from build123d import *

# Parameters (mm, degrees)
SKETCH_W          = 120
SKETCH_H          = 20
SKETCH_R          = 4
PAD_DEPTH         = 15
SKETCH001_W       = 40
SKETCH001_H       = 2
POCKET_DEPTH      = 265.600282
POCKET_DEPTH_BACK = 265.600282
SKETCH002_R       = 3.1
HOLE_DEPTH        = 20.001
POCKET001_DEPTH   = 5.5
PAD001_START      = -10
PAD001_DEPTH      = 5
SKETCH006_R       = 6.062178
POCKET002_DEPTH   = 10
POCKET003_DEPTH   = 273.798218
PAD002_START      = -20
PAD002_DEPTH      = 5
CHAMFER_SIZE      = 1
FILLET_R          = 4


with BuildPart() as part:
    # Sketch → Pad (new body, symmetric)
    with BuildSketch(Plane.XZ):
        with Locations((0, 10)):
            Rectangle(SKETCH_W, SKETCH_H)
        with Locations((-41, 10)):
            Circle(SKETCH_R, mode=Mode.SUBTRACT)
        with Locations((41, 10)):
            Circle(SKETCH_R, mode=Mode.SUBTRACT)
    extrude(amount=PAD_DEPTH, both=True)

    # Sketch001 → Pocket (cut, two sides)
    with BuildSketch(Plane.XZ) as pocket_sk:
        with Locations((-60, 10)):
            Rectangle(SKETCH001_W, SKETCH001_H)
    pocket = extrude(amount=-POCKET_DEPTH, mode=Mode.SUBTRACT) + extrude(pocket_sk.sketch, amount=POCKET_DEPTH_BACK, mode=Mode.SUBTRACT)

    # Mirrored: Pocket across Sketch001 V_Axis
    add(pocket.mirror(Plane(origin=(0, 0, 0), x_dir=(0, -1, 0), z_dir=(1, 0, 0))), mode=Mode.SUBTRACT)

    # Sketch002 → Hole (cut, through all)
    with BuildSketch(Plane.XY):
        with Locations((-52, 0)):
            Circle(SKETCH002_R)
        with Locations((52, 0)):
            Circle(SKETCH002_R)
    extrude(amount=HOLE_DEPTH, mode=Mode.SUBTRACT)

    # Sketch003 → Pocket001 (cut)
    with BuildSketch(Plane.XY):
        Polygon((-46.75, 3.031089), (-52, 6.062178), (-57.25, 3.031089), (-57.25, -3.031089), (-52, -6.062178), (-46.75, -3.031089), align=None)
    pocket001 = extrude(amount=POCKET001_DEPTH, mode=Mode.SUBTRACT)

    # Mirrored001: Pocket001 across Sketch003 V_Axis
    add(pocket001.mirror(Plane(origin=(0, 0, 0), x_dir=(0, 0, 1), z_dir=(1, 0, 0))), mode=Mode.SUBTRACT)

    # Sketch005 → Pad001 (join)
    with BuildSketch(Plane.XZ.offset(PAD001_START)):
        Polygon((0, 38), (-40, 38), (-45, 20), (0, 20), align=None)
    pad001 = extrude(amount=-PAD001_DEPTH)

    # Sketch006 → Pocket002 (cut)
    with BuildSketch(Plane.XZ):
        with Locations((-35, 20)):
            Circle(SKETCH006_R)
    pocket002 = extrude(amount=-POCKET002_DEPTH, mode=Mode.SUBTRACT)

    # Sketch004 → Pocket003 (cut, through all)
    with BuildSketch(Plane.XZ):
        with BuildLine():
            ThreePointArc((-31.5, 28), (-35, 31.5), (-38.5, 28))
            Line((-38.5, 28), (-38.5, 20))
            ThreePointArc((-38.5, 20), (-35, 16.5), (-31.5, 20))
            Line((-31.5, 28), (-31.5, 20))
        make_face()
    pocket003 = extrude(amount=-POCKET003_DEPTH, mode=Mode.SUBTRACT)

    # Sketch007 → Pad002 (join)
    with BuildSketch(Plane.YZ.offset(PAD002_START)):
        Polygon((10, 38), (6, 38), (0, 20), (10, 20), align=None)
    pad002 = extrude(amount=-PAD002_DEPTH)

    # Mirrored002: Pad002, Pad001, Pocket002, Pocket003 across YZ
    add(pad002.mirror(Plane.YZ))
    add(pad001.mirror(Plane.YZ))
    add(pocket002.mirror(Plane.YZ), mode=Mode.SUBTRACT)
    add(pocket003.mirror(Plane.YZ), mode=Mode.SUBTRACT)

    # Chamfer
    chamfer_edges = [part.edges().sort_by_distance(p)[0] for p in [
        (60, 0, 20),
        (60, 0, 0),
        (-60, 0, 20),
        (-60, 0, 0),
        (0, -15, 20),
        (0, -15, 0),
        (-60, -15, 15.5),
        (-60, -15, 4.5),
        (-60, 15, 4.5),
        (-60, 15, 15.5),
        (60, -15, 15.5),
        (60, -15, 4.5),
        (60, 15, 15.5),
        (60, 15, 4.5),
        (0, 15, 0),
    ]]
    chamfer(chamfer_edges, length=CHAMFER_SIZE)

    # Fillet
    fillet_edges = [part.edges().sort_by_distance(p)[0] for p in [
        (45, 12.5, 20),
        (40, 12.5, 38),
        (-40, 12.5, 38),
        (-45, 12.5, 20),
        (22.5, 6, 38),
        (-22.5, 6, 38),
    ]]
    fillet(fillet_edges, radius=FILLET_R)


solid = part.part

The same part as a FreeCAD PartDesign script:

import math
import FreeCAD as App
import Part
import Sketcher
Q = App.Units.Quantity


def edges_at(feature, points):
    """Names of the edges that pass closest to the given points."""
    edges = feature.Shape.Edges
    near = lambda p: min(range(len(edges)), key=lambda i: edges[i].distToShape(Part.Vertex(*p))[0])
    return sorted({f"Edge{near(p) + 1}" for p in points})

doc = App.newDocument("Part")
body = doc.addObject("PartDesign::Body", "Body")

sketch1 = body.newObject("Sketcher::SketchObject", "Sketch")
sketch1.AttachmentSupport = (doc.getObject("XZ_Plane"), [""])
sketch1.MapMode = "FlatFace"
sketch1.addGeometry(Part.LineSegment(App.Vector(-60, 20, 0), App.Vector(-60, 0, 0)), False)
sketch1.addGeometry(Part.LineSegment(App.Vector(-60, 0, 0), App.Vector(60, 0, 0)), False)
sketch1.addGeometry(Part.LineSegment(App.Vector(60, 0, 0), App.Vector(60, 20, 0)), False)
sketch1.addGeometry(Part.LineSegment(App.Vector(60, 20, 0), App.Vector(-60, 20, 0)), False)
sketch1.addGeometry(Part.Circle(App.Vector(-41, 10, 0), App.Vector(0, 0, 1), 4), False)
sketch1.addGeometry(Part.Circle(App.Vector(41, 10, 0), App.Vector(0, 0, 1), 4), False)
sketch1.addConstraint(Sketcher.Constraint("Coincident", 0, 2, 1, 1))
sketch1.addConstraint(Sketcher.Constraint("Coincident", 1, 2, 2, 1))
sketch1.addConstraint(Sketcher.Constraint("Coincident", 2, 2, 3, 1))
sketch1.addConstraint(Sketcher.Constraint("Coincident", 3, 2, 0, 1))
sketch1.addConstraint(Sketcher.Constraint("Vertical", 0))
sketch1.addConstraint(Sketcher.Constraint("Horizontal", 1))
sketch1.addConstraint(Sketcher.Constraint("Vertical", 2))
sketch1.addConstraint(Sketcher.Constraint("Horizontal", 3))
sketch1.addConstraint(Sketcher.Constraint("Equal", 4, 5))
sketch1.addConstraint(Sketcher.Constraint("Symmetric", 0, 2, 1, 2, -1, 1))
sketch1.addConstraint(Sketcher.Constraint("Symmetric", 4, 3, 5, 3, -2))
sketch1.addConstraint(Sketcher.Constraint("Diameter", 4, Q("8 mm")))
sketch1.addConstraint(Sketcher.Constraint("DistanceX", 1, 1, 1, 2, Q("120 mm")))
sketch1.addConstraint(Sketcher.Constraint("DistanceY", 0, 2, 0, 1, Q("20 mm")))
sketch1.addConstraint(Sketcher.Constraint("DistanceX", 4, 3, -1, 1, Q("41 mm")))
sketch1.addConstraint(Sketcher.Constraint("DistanceY", -1, 1, 4, 3, Q("10 mm")))
pad1 = body.newObject("PartDesign::Pad", "Pad")
pad1.Profile = sketch1
pad1.Length = 30
pad1.Midplane = True

sketch2 = body.newObject("Sketcher::SketchObject", "Sketch001")
sketch2.AttachmentSupport = (doc.getObject("XZ_Plane"), [""])
sketch2.MapMode = "FlatFace"
sketch2.addGeometry(Part.LineSegment(App.Vector(-80, 11, 0), App.Vector(-80, 9, 0)), False)
sketch2.addGeometry(Part.LineSegment(App.Vector(-80, 9, 0), App.Vector(-40, 9, 0)), False)
sketch2.addGeometry(Part.LineSegment(App.Vector(-40, 9, 0), App.Vector(-40, 11, 0)), False)
sketch2.addGeometry(Part.LineSegment(App.Vector(-40, 11, 0), App.Vector(-80, 11, 0)), False)
sketch2.addConstraint(Sketcher.Constraint("Coincident", 0, 2, 1, 1))
sketch2.addConstraint(Sketcher.Constraint("Coincident", 1, 2, 2, 1))
sketch2.addConstraint(Sketcher.Constraint("Coincident", 2, 2, 3, 1))
sketch2.addConstraint(Sketcher.Constraint("Coincident", 3, 2, 0, 1))
sketch2.addConstraint(Sketcher.Constraint("Vertical", 0))
sketch2.addConstraint(Sketcher.Constraint("Horizontal", 1))
sketch2.addConstraint(Sketcher.Constraint("Vertical", 2))
sketch2.addConstraint(Sketcher.Constraint("Horizontal", 3))
sketch2.addConstraint(Sketcher.Constraint("DistanceX", 1, 1, 1, 2, Q("40 mm")))
sketch2.addConstraint(Sketcher.Constraint("DistanceY", 0, 2, 0, 1, Q("2 mm")))
sketch2.addConstraint(Sketcher.Constraint("DistanceX", 0, 2, -1, 1, Q("80 mm")))
sketch2.addConstraint(Sketcher.Constraint("DistanceY", -1, 1, 0, 2, Q("9 mm")))
pocket1 = body.newObject("PartDesign::Pocket", "Pocket")
pocket1.Profile = sketch2
pocket1.Type = "ThroughAll"
pocket1.Midplane = True
doc.recompute()

mirrored = body.newObject("PartDesign::Mirrored", "Mirrored")
mirrored.Originals = [pocket1]
mirrored.MirrorPlane = (doc.getObject("YZ_Plane"), [""])
body.Tip = mirrored

sketch3 = body.newObject("Sketcher::SketchObject", "Sketch002")
sketch3.AttachmentSupport = (doc.getObject("XY_Plane"), [""])
sketch3.MapMode = "FlatFace"
sketch3.addGeometry(Part.Circle(App.Vector(-52, 0, 0), App.Vector(0, 0, 1), 3.1), False)
sketch3.addGeometry(Part.Circle(App.Vector(52, 0, 0), App.Vector(0, 0, 1), 3.1), False)
sketch3.addConstraint(Sketcher.Constraint("Equal", 0, 1))
sketch3.addConstraint(Sketcher.Constraint("Symmetric", 0, 3, 1, 3, -1, 1))
sketch3.addConstraint(Sketcher.Constraint("PointOnObject", 0, 3, -1))
sketch3.addConstraint(Sketcher.Constraint("Diameter", 0, Q("6.2 mm")))
sketch3.addConstraint(Sketcher.Constraint("DistanceX", 0, 3, -1, 1, Q("52 mm")))
pocket2 = body.newObject("PartDesign::Pocket", "Pocket001")
pocket2.Profile = sketch3
pocket2.Type = "ThroughAll"
pocket2.Reversed = True

sketch4 = body.newObject("Sketcher::SketchObject", "Sketch003")
sketch4.AttachmentSupport = (doc.getObject("XY_Plane"), [""])
sketch4.MapMode = "FlatFace"
sketch4.addGeometry(Part.LineSegment(App.Vector(-47, 3, 0), App.Vector(-52, 6, 0)), False)
sketch4.addGeometry(Part.LineSegment(App.Vector(-52, 6, 0), App.Vector(-57, 3, 0)), False)
sketch4.addGeometry(Part.LineSegment(App.Vector(-57, 3, 0), App.Vector(-57, -3, 0)), False)
sketch4.addGeometry(Part.LineSegment(App.Vector(-57, -3, 0), App.Vector(-52, -6, 0)), False)
sketch4.addGeometry(Part.LineSegment(App.Vector(-52, -6, 0), App.Vector(-47, -3, 0)), False)
sketch4.addGeometry(Part.LineSegment(App.Vector(-47, -3, 0), App.Vector(-47, 3, 0)), False)
sketch4.addConstraint(Sketcher.Constraint("Coincident", 0, 2, 1, 1))
sketch4.addConstraint(Sketcher.Constraint("Coincident", 1, 2, 2, 1))
sketch4.addConstraint(Sketcher.Constraint("Coincident", 2, 2, 3, 1))
sketch4.addConstraint(Sketcher.Constraint("Coincident", 3, 2, 4, 1))
sketch4.addConstraint(Sketcher.Constraint("Coincident", 4, 2, 5, 1))
sketch4.addConstraint(Sketcher.Constraint("Coincident", 5, 2, 0, 1))
sketch4.addConstraint(Sketcher.Constraint("Vertical", 2))
sketch4.addConstraint(Sketcher.Constraint("Vertical", 5))
sketch4.addConstraint(Sketcher.Constraint("Symmetric", 0, 2, 3, 2, -1))
sketch4.addConstraint(Sketcher.Constraint("Parallel", 0, 3))
sketch4.addConstraint(Sketcher.Constraint("Parallel", 1, 4))
sketch4.addConstraint(Sketcher.Constraint("Horizontal", 2, 2, 4, 2))
sketch4.addConstraint(Sketcher.Constraint("Horizontal", 1, 2, 5, 2))
sketch4.addConstraint(Sketcher.Constraint("Angle", 0, Q("149.999999 deg")))
sketch4.addConstraint(Sketcher.Constraint("DistanceX", 0, 2, -1, 1, Q("52 mm")))
sketch4.addConstraint(Sketcher.Constraint("DistanceX", 2, 2, 4, 2, Q("10.5 mm")))
sketch4.addConstraint(Sketcher.Constraint("DistanceY", 2, 2, 2, 1, Q("6.062178 mm")))
pocket3 = body.newObject("PartDesign::Pocket", "Pocket002")
pocket3.Profile = sketch4
pocket3.Length = 5.5
pocket3.Reversed = True
doc.recompute()

mirrored2 = body.newObject("PartDesign::Mirrored", "Mirrored001")
mirrored2.Originals = [pocket3]
mirrored2.MirrorPlane = (doc.getObject("YZ_Plane"), [""])
body.Tip = mirrored2

sketch5 = body.newObject("Sketcher::SketchObject", "Sketch004")
sketch5.AttachmentSupport = (doc.getObject("XZ_Plane"), [""])
sketch5.MapMode = "FlatFace"
sketch5.AttachmentOffset = App.Placement(App.Vector(0, 0, -10), App.Rotation())
sketch5.addGeometry(Part.LineSegment(App.Vector(0, 38, 0), App.Vector(-40, 38, 0)), False)
sketch5.addGeometry(Part.LineSegment(App.Vector(-40, 38, 0), App.Vector(-45, 20, 0)), False)
sketch5.addGeometry(Part.LineSegment(App.Vector(-45, 20, 0), App.Vector(0, 20, 0)), False)
sketch5.addGeometry(Part.LineSegment(App.Vector(0, 20, 0), App.Vector(0, 38, 0)), False)
sketch5.addConstraint(Sketcher.Constraint("Coincident", 0, 2, 1, 1))
sketch5.addConstraint(Sketcher.Constraint("Coincident", 1, 2, 2, 1))
sketch5.addConstraint(Sketcher.Constraint("Coincident", 2, 2, 3, 1))
sketch5.addConstraint(Sketcher.Constraint("Coincident", 3, 2, 0, 1))
sketch5.addConstraint(Sketcher.Constraint("Horizontal", 0))
sketch5.addConstraint(Sketcher.Constraint("Horizontal", 2))
sketch5.addConstraint(Sketcher.Constraint("Vertical", 3))
sketch5.addConstraint(Sketcher.Constraint("PointOnObject", 2, 2, -2))
sketch5.addConstraint(Sketcher.Constraint("DistanceX", 0, 2, 0, 1, Q("40 mm")))
sketch5.addConstraint(Sketcher.Constraint("DistanceX", 2, 1, 2, 2, Q("45 mm")))
sketch5.addConstraint(Sketcher.Constraint("DistanceY", 3, 1, 3, 2, Q("18 mm")))
sketch5.addConstraint(Sketcher.Constraint("DistanceY", -1, 1, 0, 2, Q("38 mm")))
pad2 = body.newObject("PartDesign::Pad", "Pad001")
pad2.Profile = sketch5
pad2.Length = 5
pad2.Reversed = True

sketch6 = body.newObject("Sketcher::SketchObject", "Sketch005")
sketch6.AttachmentSupport = (doc.getObject("XZ_Plane"), [""])
sketch6.MapMode = "FlatFace"
sketch6.addGeometry(Part.Circle(App.Vector(-35, 20, 0), App.Vector(0, 0, 1), 6), False)
sketch6.addConstraint(Sketcher.Constraint("DistanceX", 0, 3, -1, 1, Q("35 mm")))
sketch6.addConstraint(Sketcher.Constraint("DistanceY", -1, 1, 0, 3, Q("20 mm")))
sketch6.addConstraint(Sketcher.Constraint("Diameter", 0, Q("12.124356 mm")))
pocket4 = body.newObject("PartDesign::Pocket", "Pocket003")
pocket4.Profile = sketch6
pocket4.Length = 10

sketch7 = body.newObject("Sketcher::SketchObject", "Sketch006")
sketch7.AttachmentSupport = (doc.getObject("XZ_Plane"), [""])
sketch7.MapMode = "FlatFace"
sketch7.addGeometry(Part.ArcOfCircle(Part.Circle(App.Vector(-35, 28, 0), App.Vector(0, 0, 1), 3.5), math.radians(0), math.radians(180)), False)
sketch7.addGeometry(Part.LineSegment(App.Vector(-38.5, 28, 0), App.Vector(-38.5, 20, 0)), False)
sketch7.addGeometry(Part.ArcOfCircle(Part.Circle(App.Vector(-35, 20, 0), App.Vector(0, 0, 1), 3.5), math.radians(180), math.radians(360)), False)
sketch7.addGeometry(Part.LineSegment(App.Vector(-31.5, 20, 0), App.Vector(-31.5, 28, 0)), False)
sketch7.addConstraint(Sketcher.Constraint("Tangent", 0, 2, 1, 1))
sketch7.addConstraint(Sketcher.Constraint("Tangent", 1, 2, 2, 1))
sketch7.addConstraint(Sketcher.Constraint("Tangent", 2, 2, 3, 1))
sketch7.addConstraint(Sketcher.Constraint("Tangent", 3, 2, 0, 1))
sketch7.addConstraint(Sketcher.Constraint("Vertical", 1))
sketch7.addConstraint(Sketcher.Constraint("Vertical", 3))
sketch7.addConstraint(Sketcher.Constraint("Radius", 0, Q("3.5 mm")))
sketch7.addConstraint(Sketcher.Constraint("DistanceY", 1, 2, 1, 1, Q("8 mm")))
sketch7.addConstraint(Sketcher.Constraint("DistanceX", 0, 3, -1, 1, Q("35 mm")))
sketch7.addConstraint(Sketcher.Constraint("DistanceY", -1, 1, 0, 3, Q("28 mm")))
pocket5 = body.newObject("PartDesign::Pocket", "Pocket004")
pocket5.Profile = sketch7
pocket5.Type = "ThroughAll"

sketch8 = body.newObject("Sketcher::SketchObject", "Sketch007")
sketch8.AttachmentSupport = (doc.getObject("YZ_Plane"), [""])
sketch8.MapMode = "FlatFace"
sketch8.AttachmentOffset = App.Placement(App.Vector(0, 0, -20), App.Rotation())
sketch8.addGeometry(Part.LineSegment(App.Vector(10, 38, 0), App.Vector(6, 38, 0)), False)
sketch8.addGeometry(Part.LineSegment(App.Vector(6, 38, 0), App.Vector(0, 20, 0)), False)
sketch8.addGeometry(Part.LineSegment(App.Vector(0, 20, 0), App.Vector(10, 20, 0)), False)
sketch8.addGeometry(Part.LineSegment(App.Vector(10, 20, 0), App.Vector(10, 38, 0)), False)
sketch8.addConstraint(Sketcher.Constraint("Coincident", 0, 2, 1, 1))
sketch8.addConstraint(Sketcher.Constraint("Coincident", 1, 2, 2, 1))
sketch8.addConstraint(Sketcher.Constraint("Coincident", 2, 2, 3, 1))
sketch8.addConstraint(Sketcher.Constraint("Coincident", 3, 2, 0, 1))
sketch8.addConstraint(Sketcher.Constraint("Horizontal", 0))
sketch8.addConstraint(Sketcher.Constraint("Horizontal", 2))
sketch8.addConstraint(Sketcher.Constraint("Vertical", 3))
sketch8.addConstraint(Sketcher.Constraint("PointOnObject", 1, 2, -2))
sketch8.addConstraint(Sketcher.Constraint("DistanceX", 0, 2, 0, 1, Q("4 mm")))
sketch8.addConstraint(Sketcher.Constraint("DistanceX", 2, 1, 2, 2, Q("10 mm")))
sketch8.addConstraint(Sketcher.Constraint("DistanceY", 3, 1, 3, 2, Q("18 mm")))
sketch8.addConstraint(Sketcher.Constraint("DistanceY", -1, 1, 0, 2, Q("38 mm")))
pad3 = body.newObject("PartDesign::Pad", "Pad002")
pad3.Profile = sketch8
pad3.Length = 5
pad3.Reversed = True
doc.recompute()

mirrored3 = body.newObject("PartDesign::Mirrored", "Mirrored002")
mirrored3.Originals = [pad3, pad2, pocket4, pocket5]
mirrored3.MirrorPlane = (doc.getObject("YZ_Plane"), [""])
body.Tip = mirrored3
doc.recompute()

chamfer = body.newObject("PartDesign::Chamfer", "Chamfer")
chamfer.Base = (mirrored3, edges_at(mirrored3, [
    (60, 0, 20),
    (60, 0, 0),
    (-60, 0, 20),
    (-60, 0, 0),
    (0, -15, 20),
    (0, -15, 0),
    (-60, -15, 15.5),
    (-60, -15, 4.5),
    (-60, 15, 4.5),
    (-60, 15, 15.5),
    (60, -15, 15.5),
    (60, -15, 4.5),
    (60, 15, 15.5),
    (60, 15, 4.5),
    (0, 15, 0),
]))
chamfer.Size = 1
doc.recompute()

fillet = body.newObject("PartDesign::Fillet", "Fillet")
fillet.Base = (chamfer, edges_at(chamfer, [
    (45, 12.5, 20),
    (40, 12.5, 38),
    (-40, 12.5, 38),
    (-45, 12.5, 20),
    (22.5, 6, 38),
    (-22.5, 6, 38),
]))
fillet.Radius = 4

doc.recompute()
